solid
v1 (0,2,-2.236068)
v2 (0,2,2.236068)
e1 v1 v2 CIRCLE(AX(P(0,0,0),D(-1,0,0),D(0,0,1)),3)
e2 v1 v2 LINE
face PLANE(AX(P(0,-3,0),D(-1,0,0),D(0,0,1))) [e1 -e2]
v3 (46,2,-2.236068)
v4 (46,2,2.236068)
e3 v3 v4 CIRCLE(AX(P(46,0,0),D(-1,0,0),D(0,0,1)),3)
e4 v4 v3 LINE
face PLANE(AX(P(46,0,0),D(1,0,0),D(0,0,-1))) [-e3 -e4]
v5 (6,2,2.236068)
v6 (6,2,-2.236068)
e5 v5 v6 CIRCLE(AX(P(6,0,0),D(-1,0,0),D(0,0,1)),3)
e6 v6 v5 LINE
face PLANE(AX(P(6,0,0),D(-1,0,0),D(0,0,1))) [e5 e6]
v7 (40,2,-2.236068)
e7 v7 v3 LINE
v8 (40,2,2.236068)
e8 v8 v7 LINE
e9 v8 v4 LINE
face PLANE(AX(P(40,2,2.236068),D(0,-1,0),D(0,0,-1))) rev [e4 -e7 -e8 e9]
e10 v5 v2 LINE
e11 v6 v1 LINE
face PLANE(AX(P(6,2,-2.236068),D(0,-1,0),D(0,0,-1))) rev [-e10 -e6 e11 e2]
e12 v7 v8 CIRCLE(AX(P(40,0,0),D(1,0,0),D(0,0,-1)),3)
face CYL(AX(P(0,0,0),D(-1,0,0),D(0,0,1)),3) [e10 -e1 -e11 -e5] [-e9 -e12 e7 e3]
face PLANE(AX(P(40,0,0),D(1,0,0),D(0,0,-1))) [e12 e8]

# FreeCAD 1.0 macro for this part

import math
import FreeCAD as App
import Part
import Sketcher

V = App.Vector
Q = App.Units.Quantity

doc = App.newDocument("Part")
body = doc.addObject("PartDesign::Body", "Body")

# Sketch on XY plane
sketch1 = doc.addObject("Sketcher::SketchObject", "Sketch")
body.addObject(sketch1)
sketch1.AttachmentSupport = (doc.XY_Plane, [""])
sketch1.MapMode = "FlatFace"
sketch1.addGeometry([
    Part.LineSegment(V(0, 0, 0), V(0, -3, 0)),
    Part.LineSegment(V(0, -3, 0), V(46, -3, 0)),
    Part.LineSegment(V(46, -3, 0), V(46, 0, 0)),
    Part.LineSegment(V(46, 0, 0), V(0, 0, 0)),
], False)
sketch1.addConstraint([
    Sketcher.Constraint("Coincident", 0, 2, 1, 1),
    Sketcher.Constraint("Coincident", 1, 2, 2, 1),
    Sketcher.Constraint("Coincident", 2, 2, 3, 1),
    Sketcher.Constraint("Coincident", 3, 2, 0, 1),
    Sketcher.Constraint("Vertical", 0),
    Sketcher.Constraint("Horizontal", 1),
    Sketcher.Constraint("Vertical", 2),
    Sketcher.Constraint("Horizontal", 3),
    Sketcher.Constraint("Coincident", 3, 2, -1, 1),
    Sketcher.Constraint("DistanceX", 1, 1, 1, 2, Q("46 mm")),
    Sketcher.Constraint("DistanceY", 0, 2, 0, 1, Q("3 mm")),
])
revolution = doc.addObject("PartDesign::Revolution", "Revolution")
body.addObject(revolution)
revolution.Profile = sketch1
revolution.ReferenceAxis = (sketch1, ["H_Axis"])
revolution.Angle = 360

# Sketch on YZ plane
sketch2 = doc.addObject("Sketcher::SketchObject", "Sketch001")
body.addObject(sketch2)
sketch2.AttachmentSupport = (doc.YZ_Plane, [""])
sketch2.MapMode = "FlatFace"
sketch2.AttachmentOffset = App.Placement(V(0, 0, 46), App.Rotation())
sketch2.addGeometry([
    Part.LineSegment(V(2, 2.236068, 0), V(2, -2.236068, 0)),
    Part.ArcOfCircle(Part.Circle(V(0, 0, 0), V(0, 0, 1), 3), math.radians(-48.189685), math.radians(48.189685)),
], False)
sketch2.addConstraint([
    Sketcher.Constraint("Coincident", 0, 1, 1, 2),
    Sketcher.Constraint("Coincident", 1, 1, 0, 2),
    Sketcher.Constraint("Vertical", 0),
    Sketcher.Constraint("Coincident", 1, 3, -1, 1),
    Sketcher.Constraint("Radius", 1, Q("3 mm")),
    Sketcher.Constraint("DistanceX", -1, 1, 0, 1, Q("2 mm")),
])
pocket1 = doc.addObject("PartDesign::Pocket", "Pocket")
body.addObject(pocket1)
pocket1.Profile = sketch2
pocket1.Length = 6

# Sketch on YZ plane
sketch3 = doc.addObject("Sketcher::SketchObject", "Sketch002")
body.addObject(sketch3)
sketch3.AttachmentSupport = (doc.YZ_Plane, [""])
sketch3.MapMode = "FlatFace"
sketch3.addGeometry([
    Part.LineSegment(V(2, -2.236068, 0), V(2, 2.236068, 0)),
    Part.ArcOfCircle(Part.Circle(V(0, 0, 0), V(0, 0, 1), 3), math.radians(-48.189685), math.radians(48.189685)),
], False)
sketch3.addConstraint([
    Sketcher.Constraint("Coincident", 0, 1, 1, 1),
    Sketcher.Constraint("Coincident", 1, 2, 0, 2),
    Sketcher.Constraint("Vertical", 0),
    Sketcher.Constraint("Coincident", 1, 3, -1, 1),
    Sketcher.Constraint("Radius", 1, Q("3 mm")),
    Sketcher.Constraint("DistanceX", -1, 1, 0, 1, Q("2 mm")),
])
pocket2 = doc.addObject("PartDesign::Pocket", "Pocket001")
body.addObject(pocket2)
pocket2.Profile = sketch3
pocket2.Length = 6
pocket2.Reversed = True

doc.recompute()
